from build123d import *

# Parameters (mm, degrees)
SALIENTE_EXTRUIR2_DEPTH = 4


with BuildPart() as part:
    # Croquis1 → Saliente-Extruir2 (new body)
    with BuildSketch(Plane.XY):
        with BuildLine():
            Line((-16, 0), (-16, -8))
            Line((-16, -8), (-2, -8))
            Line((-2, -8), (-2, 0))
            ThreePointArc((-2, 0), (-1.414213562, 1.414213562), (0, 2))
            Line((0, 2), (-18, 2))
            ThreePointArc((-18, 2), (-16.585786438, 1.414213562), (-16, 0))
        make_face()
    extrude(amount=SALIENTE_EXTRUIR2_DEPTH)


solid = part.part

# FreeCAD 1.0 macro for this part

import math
import FreeCAD as App
import Part
import Sketcher
from FreeCAD import Vector
Q = App.Units.Quantity

doc = App.newDocument("Part")
params = doc.addObject("Spreadsheet::Sheet", "Params")
for row, (alias, value) in enumerate([
    ("sketch1_radius", "2 mm"),
    ("sketch1_width", "14 mm"),
    ("sketch1_height", "8 mm"),
    ("pad1_length", "4 mm"),
], start=1):
    params.set(f"A{row}", alias)
    params.set(f"B{row}", "=" + value)
    params.setAlias(f"B{row}", alias)

body = doc.addObject("PartDesign::Body", "Body")

sketch1 = doc.addObject("Sketcher::SketchObject", "Sketch")
body.addObject(sketch1)
sketch1.AttachmentSupport = (doc.XY_Plane, [""])
sketch1.MapMode = "FlatFace"
sketch1.addGeometry([
    Part.LineSegment(Vector(-16, 0, 0), Vector(-16, -8, 0)),
    Part.LineSegment(Vector(-16, -8, 0), Vector(-2, -8, 0)),
    Part.LineSegment(Vector(-2, -8, 0), Vector(-2, 0, 0)),
    Part.ArcOfCircle(Part.Circle(Vector(0, 0, 0), Vector(0, 0, 1), 2), math.radians(90), math.radians(180)),
    Part.LineSegment(Vector(0, 2, 0), Vector(-18, 2, 0)),
    Part.ArcOfCircle(Part.Circle(Vector(-18, 0, 0), Vector(0, 0, 1), 2), math.radians(0), math.radians(90)),
], False)
sketch1.addConstraint([
    Sketcher.Constraint("Coincident", 0, 2, 1, 1),
    Sketcher.Constraint("Coincident", 1, 2, 2, 1),
    Sketcher.Constraint("Tangent", 2, 2, 3, 2),
    Sketcher.Constraint("Tangent", 3, 1, 4, 1),
    Sketcher.Constraint("Tangent", 4, 2, 5, 2),
    Sketcher.Constraint("Tangent", 5, 1, 0, 1),
    Sketcher.Constraint("Vertical", 0),
    Sketcher.Constraint("Horizontal", 1),
    Sketcher.Constraint("Vertical", 2),
    Sketcher.Constraint("Horizontal", 4),
    Sketcher.Constraint("Coincident", 3, 3, -1, 1),
    Sketcher.Constraint("Equal", 3, 5),
    Sketcher.Constraint("Radius", 3, Q("2 mm")),
    Sketcher.Constraint("DistanceX", 1, 1, 1, 2, Q("14 mm")),
    Sketcher.Constraint("DistanceY", 0, 2, 0, 1, Q("8 mm")),
])
sketch1.setExpression("Constraints[12]", "Params.sketch1_radius")
sketch1.setExpression("Constraints[13]", "Params.sketch1_width")
sketch1.setExpression("Constraints[14]", "Params.sketch1_height")
pad1 = doc.addObject("PartDesign::Pad", "Pad")
body.addObject(pad1)
pad1.Profile = sketch1
pad1.setExpression("Length", "Params.pad1_length")

doc.recompute()
